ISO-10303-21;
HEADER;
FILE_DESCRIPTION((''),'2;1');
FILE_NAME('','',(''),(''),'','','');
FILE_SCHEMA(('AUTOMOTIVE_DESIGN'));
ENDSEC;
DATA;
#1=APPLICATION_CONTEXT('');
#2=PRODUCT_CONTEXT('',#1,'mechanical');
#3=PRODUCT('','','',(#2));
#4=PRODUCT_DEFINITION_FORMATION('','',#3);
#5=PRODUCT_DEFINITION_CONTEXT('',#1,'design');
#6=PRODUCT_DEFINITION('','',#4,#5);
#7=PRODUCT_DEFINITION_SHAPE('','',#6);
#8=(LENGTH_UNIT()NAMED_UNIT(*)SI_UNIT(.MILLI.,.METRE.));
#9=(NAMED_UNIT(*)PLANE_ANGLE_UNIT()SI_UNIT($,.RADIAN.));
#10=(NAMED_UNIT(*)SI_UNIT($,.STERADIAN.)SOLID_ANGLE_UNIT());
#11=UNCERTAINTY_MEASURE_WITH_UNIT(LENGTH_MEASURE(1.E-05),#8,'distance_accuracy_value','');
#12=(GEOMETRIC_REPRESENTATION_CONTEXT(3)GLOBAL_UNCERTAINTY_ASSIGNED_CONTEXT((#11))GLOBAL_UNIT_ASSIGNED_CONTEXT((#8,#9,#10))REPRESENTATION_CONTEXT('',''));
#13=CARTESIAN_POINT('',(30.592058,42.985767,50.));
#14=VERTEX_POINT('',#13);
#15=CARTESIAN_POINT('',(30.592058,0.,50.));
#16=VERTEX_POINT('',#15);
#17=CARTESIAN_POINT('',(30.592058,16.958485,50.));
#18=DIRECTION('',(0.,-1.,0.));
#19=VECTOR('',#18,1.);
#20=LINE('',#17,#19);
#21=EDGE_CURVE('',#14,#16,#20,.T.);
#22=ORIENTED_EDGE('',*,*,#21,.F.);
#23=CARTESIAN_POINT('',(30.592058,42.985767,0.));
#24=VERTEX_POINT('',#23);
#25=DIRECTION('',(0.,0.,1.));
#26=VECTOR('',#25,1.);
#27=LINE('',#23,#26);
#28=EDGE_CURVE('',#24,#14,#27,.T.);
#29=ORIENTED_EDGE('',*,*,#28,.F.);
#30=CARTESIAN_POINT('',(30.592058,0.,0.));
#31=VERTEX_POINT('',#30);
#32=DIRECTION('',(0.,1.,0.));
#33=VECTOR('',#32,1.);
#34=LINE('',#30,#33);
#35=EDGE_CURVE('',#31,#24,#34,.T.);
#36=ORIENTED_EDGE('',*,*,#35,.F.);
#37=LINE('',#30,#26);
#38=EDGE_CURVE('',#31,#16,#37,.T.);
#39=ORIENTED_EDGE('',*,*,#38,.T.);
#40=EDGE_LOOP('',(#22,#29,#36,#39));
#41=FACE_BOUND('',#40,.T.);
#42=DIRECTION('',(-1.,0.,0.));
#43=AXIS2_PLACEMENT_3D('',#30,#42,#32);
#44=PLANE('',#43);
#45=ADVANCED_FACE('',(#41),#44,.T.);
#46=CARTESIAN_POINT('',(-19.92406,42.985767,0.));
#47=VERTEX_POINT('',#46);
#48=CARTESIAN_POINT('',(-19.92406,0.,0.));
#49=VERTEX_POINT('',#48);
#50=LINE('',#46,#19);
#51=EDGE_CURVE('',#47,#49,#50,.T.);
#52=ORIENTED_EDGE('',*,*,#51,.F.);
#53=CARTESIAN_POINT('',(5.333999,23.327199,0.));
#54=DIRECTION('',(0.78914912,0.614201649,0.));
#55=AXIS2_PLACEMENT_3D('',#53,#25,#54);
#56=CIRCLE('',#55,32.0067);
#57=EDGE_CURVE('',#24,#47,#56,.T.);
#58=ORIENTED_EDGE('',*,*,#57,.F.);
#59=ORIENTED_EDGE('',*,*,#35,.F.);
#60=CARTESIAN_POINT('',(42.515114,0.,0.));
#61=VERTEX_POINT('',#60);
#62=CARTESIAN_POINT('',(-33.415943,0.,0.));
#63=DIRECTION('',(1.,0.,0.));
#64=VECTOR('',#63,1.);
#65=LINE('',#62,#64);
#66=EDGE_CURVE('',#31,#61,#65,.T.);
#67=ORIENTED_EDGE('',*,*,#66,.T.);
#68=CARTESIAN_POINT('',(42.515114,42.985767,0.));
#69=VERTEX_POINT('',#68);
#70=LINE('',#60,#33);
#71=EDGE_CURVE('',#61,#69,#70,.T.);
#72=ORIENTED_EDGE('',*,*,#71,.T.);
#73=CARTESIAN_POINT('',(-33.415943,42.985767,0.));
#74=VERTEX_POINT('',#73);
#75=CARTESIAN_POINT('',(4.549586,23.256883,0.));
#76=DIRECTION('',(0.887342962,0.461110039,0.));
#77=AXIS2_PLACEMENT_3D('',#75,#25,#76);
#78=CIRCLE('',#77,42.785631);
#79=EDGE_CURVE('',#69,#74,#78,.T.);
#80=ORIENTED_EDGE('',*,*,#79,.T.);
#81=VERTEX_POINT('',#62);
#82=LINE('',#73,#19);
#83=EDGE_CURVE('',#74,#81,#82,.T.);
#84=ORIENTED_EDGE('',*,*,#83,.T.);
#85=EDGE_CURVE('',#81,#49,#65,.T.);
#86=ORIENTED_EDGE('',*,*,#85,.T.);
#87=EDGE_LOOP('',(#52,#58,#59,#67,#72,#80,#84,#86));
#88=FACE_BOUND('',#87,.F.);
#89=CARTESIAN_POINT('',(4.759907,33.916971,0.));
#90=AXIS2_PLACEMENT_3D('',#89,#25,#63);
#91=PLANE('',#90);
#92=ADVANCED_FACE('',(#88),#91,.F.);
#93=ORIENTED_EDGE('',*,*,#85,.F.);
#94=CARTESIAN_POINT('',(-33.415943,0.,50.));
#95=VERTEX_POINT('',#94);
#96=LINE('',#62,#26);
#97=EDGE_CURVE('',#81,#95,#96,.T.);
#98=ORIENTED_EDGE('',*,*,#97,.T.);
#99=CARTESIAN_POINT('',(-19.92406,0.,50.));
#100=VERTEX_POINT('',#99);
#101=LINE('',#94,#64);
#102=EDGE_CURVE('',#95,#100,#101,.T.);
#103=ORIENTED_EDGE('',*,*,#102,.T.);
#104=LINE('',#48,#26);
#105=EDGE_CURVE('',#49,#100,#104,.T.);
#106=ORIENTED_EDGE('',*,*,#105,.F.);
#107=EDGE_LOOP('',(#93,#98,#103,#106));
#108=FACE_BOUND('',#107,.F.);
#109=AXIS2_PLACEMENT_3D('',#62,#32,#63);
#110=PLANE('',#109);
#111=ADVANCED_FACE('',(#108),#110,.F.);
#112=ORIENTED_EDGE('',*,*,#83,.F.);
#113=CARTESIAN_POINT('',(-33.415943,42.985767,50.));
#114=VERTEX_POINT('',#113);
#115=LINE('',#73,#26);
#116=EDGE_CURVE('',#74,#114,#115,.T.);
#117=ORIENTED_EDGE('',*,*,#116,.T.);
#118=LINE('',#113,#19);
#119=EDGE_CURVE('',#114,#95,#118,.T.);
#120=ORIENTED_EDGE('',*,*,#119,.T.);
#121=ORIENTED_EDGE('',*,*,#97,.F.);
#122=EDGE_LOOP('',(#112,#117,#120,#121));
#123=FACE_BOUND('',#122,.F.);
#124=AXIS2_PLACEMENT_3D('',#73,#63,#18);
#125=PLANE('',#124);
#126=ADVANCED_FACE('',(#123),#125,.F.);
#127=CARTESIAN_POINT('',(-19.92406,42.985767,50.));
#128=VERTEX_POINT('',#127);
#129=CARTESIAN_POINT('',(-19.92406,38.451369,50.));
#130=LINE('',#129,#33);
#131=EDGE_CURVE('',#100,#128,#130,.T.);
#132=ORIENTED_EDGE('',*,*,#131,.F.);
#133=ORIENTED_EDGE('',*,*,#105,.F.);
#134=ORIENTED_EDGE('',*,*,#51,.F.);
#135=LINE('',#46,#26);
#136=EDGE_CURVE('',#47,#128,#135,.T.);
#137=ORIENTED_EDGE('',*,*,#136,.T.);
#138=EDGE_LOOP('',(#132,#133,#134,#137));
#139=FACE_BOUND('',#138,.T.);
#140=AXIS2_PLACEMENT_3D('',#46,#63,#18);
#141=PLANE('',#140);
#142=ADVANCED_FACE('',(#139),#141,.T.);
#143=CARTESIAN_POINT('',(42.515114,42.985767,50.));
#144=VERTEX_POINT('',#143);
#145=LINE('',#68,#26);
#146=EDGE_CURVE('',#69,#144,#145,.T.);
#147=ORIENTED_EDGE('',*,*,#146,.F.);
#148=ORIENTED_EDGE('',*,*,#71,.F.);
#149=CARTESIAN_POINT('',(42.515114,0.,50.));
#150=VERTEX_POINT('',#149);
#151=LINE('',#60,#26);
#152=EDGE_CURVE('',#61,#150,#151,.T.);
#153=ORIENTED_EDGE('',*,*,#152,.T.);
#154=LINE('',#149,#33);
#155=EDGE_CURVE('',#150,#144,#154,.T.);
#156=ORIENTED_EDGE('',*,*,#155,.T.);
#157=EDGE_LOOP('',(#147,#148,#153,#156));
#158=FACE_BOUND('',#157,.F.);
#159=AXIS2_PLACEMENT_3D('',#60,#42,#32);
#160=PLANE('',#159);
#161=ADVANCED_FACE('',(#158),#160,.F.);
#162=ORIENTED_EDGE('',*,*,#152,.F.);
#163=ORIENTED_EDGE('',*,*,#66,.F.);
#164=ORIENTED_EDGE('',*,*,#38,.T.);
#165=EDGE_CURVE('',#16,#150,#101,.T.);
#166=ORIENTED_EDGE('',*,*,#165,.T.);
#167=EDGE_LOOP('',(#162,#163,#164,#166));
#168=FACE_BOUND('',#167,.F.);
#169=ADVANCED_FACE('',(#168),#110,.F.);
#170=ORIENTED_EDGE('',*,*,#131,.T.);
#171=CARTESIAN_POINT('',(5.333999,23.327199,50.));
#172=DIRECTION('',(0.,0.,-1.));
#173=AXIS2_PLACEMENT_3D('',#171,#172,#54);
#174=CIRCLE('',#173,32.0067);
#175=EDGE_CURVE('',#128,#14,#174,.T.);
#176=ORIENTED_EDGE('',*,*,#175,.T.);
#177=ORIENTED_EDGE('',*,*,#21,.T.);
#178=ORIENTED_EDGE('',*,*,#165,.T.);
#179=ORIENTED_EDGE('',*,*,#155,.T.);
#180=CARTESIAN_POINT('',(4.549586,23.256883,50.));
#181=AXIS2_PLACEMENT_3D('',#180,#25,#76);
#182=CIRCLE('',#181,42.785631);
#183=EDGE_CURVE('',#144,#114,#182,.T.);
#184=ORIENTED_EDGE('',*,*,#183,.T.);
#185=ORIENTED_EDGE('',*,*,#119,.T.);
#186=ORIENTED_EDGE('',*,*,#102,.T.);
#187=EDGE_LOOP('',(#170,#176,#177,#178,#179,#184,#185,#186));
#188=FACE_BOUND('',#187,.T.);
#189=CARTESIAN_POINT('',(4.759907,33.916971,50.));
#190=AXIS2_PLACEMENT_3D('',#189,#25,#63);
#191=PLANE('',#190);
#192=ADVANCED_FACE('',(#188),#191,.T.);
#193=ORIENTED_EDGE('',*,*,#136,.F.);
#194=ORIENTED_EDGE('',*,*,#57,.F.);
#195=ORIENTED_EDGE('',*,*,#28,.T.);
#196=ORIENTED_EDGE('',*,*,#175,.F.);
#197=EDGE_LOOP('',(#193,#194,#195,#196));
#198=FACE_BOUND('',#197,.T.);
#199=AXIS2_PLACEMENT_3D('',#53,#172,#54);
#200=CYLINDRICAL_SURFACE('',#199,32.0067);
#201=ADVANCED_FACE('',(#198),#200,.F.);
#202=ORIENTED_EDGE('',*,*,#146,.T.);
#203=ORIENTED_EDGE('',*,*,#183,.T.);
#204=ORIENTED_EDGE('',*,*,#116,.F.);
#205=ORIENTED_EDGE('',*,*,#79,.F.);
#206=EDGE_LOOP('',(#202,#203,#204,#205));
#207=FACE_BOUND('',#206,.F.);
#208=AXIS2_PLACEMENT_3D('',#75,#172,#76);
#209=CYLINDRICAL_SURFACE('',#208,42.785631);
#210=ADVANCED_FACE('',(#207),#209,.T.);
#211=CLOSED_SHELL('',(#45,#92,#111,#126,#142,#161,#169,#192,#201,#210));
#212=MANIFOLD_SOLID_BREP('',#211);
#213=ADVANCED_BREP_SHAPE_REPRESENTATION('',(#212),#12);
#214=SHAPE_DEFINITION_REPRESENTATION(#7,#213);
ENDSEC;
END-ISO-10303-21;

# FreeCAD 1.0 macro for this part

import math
import FreeCAD as App
import Part
import Sketcher

V = App.Vector
Q = App.Units.Quantity

doc = App.newDocument("Part")
body = doc.addObject("PartDesign::Body", "Body")

sketch1 = doc.addObject("Sketcher::SketchObject", "Sketch")
body.addObject(sketch1)
sketch1.AttachmentSupport = (doc.XY_Plane, [""])
sketch1.MapMode = "FlatFace"
sketch1.addGeometry([
    Part.LineSegment(V(-33.415943, 42.985767, 0), V(-33.415943, 0, 0)),
    Part.LineSegment(V(-33.415943, 0, 0), V(42.515114, 0, 0)),
    Part.LineSegment(V(42.515114, 0, 0), V(42.515114, 42.985767, 0)),
    Part.ArcOfCircle(Part.Circle(V(4.549586, 23.256883, 0), V(0, 0, 1), 42.785631), math.radians(27.45876), math.radians(152.54124)),
], False)
sketch1.addConstraint([
    Sketcher.Constraint("Coincident", 0, 2, 1, 1),
    Sketcher.Constraint("Coincident", 1, 2, 2, 1),
    Sketcher.Constraint("Coincident", 2, 2, 3, 1),
    Sketcher.Constraint("Coincident", 3, 2, 0, 1),
    Sketcher.Constraint("Vertical", 0),
    Sketcher.Constraint("Horizontal", 1),
    Sketcher.Constraint("Vertical", 2),
    Sketcher.Constraint("PointOnObject", 0, 2, -1),
    Sketcher.Constraint("Horizontal", 2, 2, 3, 2),
    Sketcher.Constraint("Radius", 3, Q("42.785631 mm")),
    Sketcher.Constraint("DistanceX", 1, 1, 1, 2, Q("75.931057 mm")),
    Sketcher.Constraint("DistanceY", 0, 2, 0, 1, Q("42.985767 mm")),
    Sketcher.Constraint("DistanceX", -1, 1, 3, 3, Q("4.549586 mm")),
])
pad1 = doc.addObject("PartDesign::Pad", "Pad")
body.addObject(pad1)
pad1.Profile = sketch1
pad1.Length = 50

sketch2 = doc.addObject("Sketcher::SketchObject", "Sketch001")
body.addObject(sketch2)
sketch2.AttachmentSupport = (doc.XY_Plane, [""])
sketch2.MapMode = "FlatFace"
sketch2.addGeometry([
    Part.LineSegment(V(-19.92406, 42.985767, 0), V(-19.92406, 0, 0)),
    Part.LineSegment(V(-19.92406, 0, 0), V(30.592058, 0, 0)),
    Part.LineSegment(V(30.592058, 0, 0), V(30.592058, 42.985767, 0)),
    Part.ArcOfCircle(Part.Circle(V(5.333999, 23.327199, 0), V(0, 0, 1), 32.0067), math.radians(37.893934), math.radians(142.106066)),
], False)
sketch2.addConstraint([
    Sketcher.Constraint("Coincident", 0, 2, 1, 1),
    Sketcher.Constraint("Coincident", 1, 2, 2, 1),
    Sketcher.Constraint("Coincident", 2, 2, 3, 1),
    Sketcher.Constraint("Coincident", 3, 2, 0, 1),
    Sketcher.Constraint("Vertical", 0),
    Sketcher.Constraint("Horizontal", 1),
    Sketcher.Constraint("Vertical", 2),
    Sketcher.Constraint("PointOnObject", 0, 2, -1),
    Sketcher.Constraint("Horizontal", 2, 2, 3, 2),
    Sketcher.Constraint("Radius", 3, Q("32.0067 mm")),
    Sketcher.Constraint("DistanceX", -1, 1, 3, 3, Q("5.333999 mm")),
    Sketcher.Constraint("DistanceX", 1, 1, 1, 2, Q("50.516118 mm")),
    Sketcher.Constraint("DistanceY", -1, 1, 3, 3, Q("23.327199 mm")),
])
pocket1 = doc.addObject("PartDesign::Pocket", "Pocket")
body.addObject(pocket1)
pocket1.Profile = sketch2
pocket1.Type = "ThroughAll"
pocket1.Reversed = True

doc.recompute()
